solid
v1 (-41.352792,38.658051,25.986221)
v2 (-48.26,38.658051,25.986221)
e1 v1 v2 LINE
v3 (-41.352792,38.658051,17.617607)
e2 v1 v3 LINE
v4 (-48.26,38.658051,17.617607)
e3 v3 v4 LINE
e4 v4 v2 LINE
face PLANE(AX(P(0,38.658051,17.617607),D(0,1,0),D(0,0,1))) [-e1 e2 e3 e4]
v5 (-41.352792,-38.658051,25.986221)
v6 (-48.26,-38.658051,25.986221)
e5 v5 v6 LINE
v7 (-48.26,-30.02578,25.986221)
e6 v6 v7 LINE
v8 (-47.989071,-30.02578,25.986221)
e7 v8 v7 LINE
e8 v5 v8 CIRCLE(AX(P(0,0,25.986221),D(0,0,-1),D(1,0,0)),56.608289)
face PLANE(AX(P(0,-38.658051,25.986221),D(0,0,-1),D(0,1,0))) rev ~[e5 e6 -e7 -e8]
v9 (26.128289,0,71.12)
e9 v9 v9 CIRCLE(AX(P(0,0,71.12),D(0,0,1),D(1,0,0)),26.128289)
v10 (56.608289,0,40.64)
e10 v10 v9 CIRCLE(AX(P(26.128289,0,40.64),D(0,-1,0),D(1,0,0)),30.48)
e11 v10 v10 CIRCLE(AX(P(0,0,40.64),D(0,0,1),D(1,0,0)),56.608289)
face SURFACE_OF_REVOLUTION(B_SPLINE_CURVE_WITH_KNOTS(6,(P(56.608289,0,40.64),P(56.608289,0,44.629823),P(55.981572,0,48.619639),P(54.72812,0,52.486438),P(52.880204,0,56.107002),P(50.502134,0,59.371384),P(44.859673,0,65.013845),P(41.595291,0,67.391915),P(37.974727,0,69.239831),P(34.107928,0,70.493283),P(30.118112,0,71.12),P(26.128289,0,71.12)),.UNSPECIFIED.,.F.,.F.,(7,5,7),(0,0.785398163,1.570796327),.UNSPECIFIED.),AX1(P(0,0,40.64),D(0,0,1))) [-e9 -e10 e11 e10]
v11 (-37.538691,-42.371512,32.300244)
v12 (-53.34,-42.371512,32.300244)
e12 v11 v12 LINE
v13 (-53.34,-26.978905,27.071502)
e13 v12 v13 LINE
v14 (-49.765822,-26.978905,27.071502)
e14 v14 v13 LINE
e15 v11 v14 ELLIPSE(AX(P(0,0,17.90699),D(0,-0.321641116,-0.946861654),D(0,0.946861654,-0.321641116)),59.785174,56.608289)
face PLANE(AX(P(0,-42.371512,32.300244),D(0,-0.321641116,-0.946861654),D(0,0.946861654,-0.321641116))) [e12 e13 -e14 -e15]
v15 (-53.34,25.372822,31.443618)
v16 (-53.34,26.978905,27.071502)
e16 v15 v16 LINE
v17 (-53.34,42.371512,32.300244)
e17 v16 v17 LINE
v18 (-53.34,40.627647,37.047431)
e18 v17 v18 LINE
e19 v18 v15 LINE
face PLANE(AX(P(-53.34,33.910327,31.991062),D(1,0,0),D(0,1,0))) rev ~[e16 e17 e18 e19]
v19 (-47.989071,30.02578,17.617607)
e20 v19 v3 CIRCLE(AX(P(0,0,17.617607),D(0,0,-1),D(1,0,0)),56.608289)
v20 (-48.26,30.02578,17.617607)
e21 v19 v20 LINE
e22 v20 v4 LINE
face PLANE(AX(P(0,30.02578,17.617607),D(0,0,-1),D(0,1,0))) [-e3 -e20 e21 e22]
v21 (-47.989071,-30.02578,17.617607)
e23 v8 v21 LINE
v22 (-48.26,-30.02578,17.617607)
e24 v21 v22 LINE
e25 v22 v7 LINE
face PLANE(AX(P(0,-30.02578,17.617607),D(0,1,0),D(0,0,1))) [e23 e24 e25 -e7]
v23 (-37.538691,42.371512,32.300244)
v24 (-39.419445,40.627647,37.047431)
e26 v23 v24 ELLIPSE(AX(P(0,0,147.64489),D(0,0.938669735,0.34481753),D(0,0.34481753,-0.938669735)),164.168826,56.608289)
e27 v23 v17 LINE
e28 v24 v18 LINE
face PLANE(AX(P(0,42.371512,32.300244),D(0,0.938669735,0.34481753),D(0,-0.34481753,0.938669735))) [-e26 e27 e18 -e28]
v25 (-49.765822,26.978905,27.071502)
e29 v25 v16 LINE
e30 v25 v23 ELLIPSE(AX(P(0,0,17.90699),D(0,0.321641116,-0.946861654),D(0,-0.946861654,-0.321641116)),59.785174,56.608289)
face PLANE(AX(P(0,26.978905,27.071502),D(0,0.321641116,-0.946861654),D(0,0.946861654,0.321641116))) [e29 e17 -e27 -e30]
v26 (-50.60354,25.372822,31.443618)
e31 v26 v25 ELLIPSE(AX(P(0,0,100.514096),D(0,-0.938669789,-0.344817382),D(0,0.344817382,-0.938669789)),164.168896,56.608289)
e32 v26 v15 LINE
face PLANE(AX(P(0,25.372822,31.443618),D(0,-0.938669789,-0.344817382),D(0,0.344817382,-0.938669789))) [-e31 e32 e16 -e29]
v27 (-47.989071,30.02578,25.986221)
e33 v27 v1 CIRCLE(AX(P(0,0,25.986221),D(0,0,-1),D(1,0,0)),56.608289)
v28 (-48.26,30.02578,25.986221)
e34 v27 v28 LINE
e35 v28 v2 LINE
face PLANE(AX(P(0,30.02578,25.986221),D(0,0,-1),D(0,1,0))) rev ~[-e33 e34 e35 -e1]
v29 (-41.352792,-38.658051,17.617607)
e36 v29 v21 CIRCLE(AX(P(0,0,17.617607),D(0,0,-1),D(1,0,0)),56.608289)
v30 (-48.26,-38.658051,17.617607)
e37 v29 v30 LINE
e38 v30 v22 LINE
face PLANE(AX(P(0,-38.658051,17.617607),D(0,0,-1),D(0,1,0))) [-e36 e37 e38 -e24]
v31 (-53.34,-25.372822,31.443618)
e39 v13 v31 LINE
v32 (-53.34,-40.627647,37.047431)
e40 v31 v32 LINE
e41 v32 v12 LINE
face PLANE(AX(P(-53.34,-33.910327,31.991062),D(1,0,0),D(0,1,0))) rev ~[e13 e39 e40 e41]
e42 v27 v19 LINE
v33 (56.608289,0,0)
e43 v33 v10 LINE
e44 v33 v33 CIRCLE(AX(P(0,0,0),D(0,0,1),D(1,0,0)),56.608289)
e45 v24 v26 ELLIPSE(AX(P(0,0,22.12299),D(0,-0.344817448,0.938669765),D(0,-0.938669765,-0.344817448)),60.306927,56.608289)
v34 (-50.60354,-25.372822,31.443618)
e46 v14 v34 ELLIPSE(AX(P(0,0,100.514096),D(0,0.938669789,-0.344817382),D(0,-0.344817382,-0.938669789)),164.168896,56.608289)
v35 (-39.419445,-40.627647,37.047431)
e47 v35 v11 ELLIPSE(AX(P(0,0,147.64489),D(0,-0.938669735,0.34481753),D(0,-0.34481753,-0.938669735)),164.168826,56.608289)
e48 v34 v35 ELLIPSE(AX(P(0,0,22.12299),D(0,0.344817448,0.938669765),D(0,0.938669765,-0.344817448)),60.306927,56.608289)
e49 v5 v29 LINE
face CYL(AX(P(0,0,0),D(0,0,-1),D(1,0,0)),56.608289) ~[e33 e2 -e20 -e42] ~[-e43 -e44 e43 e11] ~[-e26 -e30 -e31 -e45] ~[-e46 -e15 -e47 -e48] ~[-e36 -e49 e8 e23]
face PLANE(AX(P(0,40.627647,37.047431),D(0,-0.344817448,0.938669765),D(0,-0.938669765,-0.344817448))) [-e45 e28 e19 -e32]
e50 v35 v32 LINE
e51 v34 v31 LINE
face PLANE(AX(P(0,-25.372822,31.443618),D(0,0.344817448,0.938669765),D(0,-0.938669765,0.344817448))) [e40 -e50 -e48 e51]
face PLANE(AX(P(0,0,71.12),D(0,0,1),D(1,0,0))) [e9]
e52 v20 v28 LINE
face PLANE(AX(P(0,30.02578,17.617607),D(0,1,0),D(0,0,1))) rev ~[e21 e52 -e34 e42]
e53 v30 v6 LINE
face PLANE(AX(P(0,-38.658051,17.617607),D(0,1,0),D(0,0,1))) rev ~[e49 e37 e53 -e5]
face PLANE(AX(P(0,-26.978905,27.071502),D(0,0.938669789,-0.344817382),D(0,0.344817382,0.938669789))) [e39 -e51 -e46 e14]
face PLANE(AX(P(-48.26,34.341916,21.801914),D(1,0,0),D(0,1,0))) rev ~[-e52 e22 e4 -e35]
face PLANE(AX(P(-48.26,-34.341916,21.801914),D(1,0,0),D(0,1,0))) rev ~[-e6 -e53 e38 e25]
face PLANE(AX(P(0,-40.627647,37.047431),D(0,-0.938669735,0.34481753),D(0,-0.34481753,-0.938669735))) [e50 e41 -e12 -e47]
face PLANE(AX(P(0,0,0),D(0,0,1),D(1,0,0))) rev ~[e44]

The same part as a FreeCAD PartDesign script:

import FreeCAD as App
import Part
import Sketcher
from FreeCAD import Vector
Q = App.Units.Quantity


def edges_at(feature, points):
    """Names of the edges that pass closest to the given points."""
    edges = feature.Shape.Edges
    near = lambda p: min(range(len(edges)), key=lambda i: edges[i].distToShape(Part.Vertex(*p))[0])
    return sorted({f"Edge{near(p) + 1}" for p in points})


def add_polygon(sketch, points):
    """Adds a closed chain of lines whose ends are joined by coincident constraints."""
    first, n = sketch.GeometryCount, len(points)
    for a, b in zip(points, points[1:] + points[:1]):
        sketch.addGeometry(Part.LineSegment(App.Vector(*a, 0), App.Vector(*b, 0)), False)
    for i in range(n):
        sketch.addConstraint(Sketcher.Constraint("Coincident", first + i, 2, first + (i + 1) % n, 1))

doc = App.newDocument("Part")
body = doc.addObject("PartDesign::Body", "Body")

# Sketch on XY plane
sketch1 = body.newObject("Sketcher::SketchObject", "Sketch")
sketch1.AttachmentSupport = (doc.getObject("XY_Plane"), [""])
sketch1.MapMode = "FlatFace"
sketch1.addGeometry(Part.Circle(Vector(0, 0, 0), Vector(0, 0, 1), 57), False)
sketch1.addConstraint([
    Sketcher.Constraint("Coincident", 0, 3, -1, 1),
    Sketcher.Constraint("Diameter", 0, Q("113.216578 mm")),
])
pad1 = body.newObject("PartDesign::Pad", "Pad")
pad1.Profile = sketch1
pad1.Length = Q("2.8 in")
doc.recompute()

fillet = body.newObject("PartDesign::Fillet", "Fillet")
fillet.Base = (pad1, edges_at(pad1, [(-56.608, 0, 71.12)]))
fillet.Radius = Q("1.2 in")

# Sketch on YZ plane
sketch2 = body.newObject("Sketcher::SketchObject", "Sketch001")
sketch2.AttachmentSupport = (doc.getObject("YZ_Plane"), [""])
sketch2.MapMode = "FlatFace"
add_polygon(sketch2, [(30, 26), (30, 18), (39, 18), (39, 26)])  # lines 0-3
add_polygon(sketch2, [(-39, 26), (-39, 18), (-30, 18), (-30, 26)])  # lines 4-7
sketch2.addConstraint([
    Sketcher.Constraint("Vertical", 0),
    Sketcher.Constraint("Horizontal", 1),
    Sketcher.Constraint("Vertical", 2),
    Sketcher.Constraint("Horizontal", 3),
    Sketcher.Constraint("Vertical", 4),
    Sketcher.Constraint("Horizontal", 5),
    Sketcher.Constraint("Vertical", 6),
    Sketcher.Constraint("Horizontal", 7),
    Sketcher.Constraint("Symmetric", 1, 2, 4, 2, -2),
    Sketcher.Constraint("Symmetric", 3, 2, 6, 2, -2),
    Sketcher.Constraint("DistanceX", 1, 1, 1, 2, Q("8.632271 mm")),
    Sketcher.Constraint("DistanceY", 0, 2, 0, 1, Q("8.368614 mm")),
    Sketcher.Constraint("DistanceX", -1, 1, 0, 2, Q("30.02578 mm")),
    Sketcher.Constraint("DistanceY", -1, 1, 2, 2, Q("25.986221 mm")),
])
pad2 = body.newObject("PartDesign::Pad", "Pad001")
pad2.Profile = sketch2
pad2.Length = Q("1.9 in")
pad2.Reversed = True

# Sketch on YZ plane
sketch3 = body.newObject("Sketcher::SketchObject", "Sketch002")
sketch3.AttachmentSupport = (doc.getObject("YZ_Plane"), [""])
sketch3.MapMode = "FlatFace"
add_polygon(sketch3, [(42.371512, 32.300244), (40.627647, 37.047431), (25.372822, 31.443618), (26.978905, 27.071502)])  # lines 0-3
add_polygon(sketch3, [(-26.978905, 27.071502), (-25.372822, 31.443618), (-40.627647, 37.047431), (-42.371512, 32.300244)])  # lines 4-7
sketch3.addConstraint([
    Sketcher.Constraint("Symmetric", 1, 2, 4, 2, -2),
    Sketcher.Constraint("Symmetric", 0, 2, 5, 2, -2),
    Sketcher.Constraint("Symmetric", 3, 2, 6, 2, -2),
    Sketcher.Constraint("Symmetric", 2, 2, 7, 2, -2),
    Sketcher.Constraint("Perpendicular", 0, 1),
    Sketcher.Constraint("Perpendicular", 1, 2),
    Sketcher.Constraint("DistanceY", -1, 1, 2, 2, Q("27.071502 mm")),
    Sketcher.Constraint("Distance", 2, Q("4.657779 mm")),
    Sketcher.Constraint("DistanceY", -1, 1, 0, 2, Q("37.047431 mm")),
    Sketcher.Constraint("DistanceX", -1, 1, 1, 2, Q("25.372822 mm")),
    Sketcher.Constraint("DistanceY", -1, 1, 1, 2, Q("31.443618 mm")),
    Sketcher.Constraint("DistanceX", 1, 2, 3, 2, Q("16.99869 mm")),
])
pad3 = body.newObject("PartDesign::Pad", "Pad002")
pad3.Profile = sketch3
pad3.Length = Q("2.1 in")
pad3.Reversed = True

doc.recompute()
